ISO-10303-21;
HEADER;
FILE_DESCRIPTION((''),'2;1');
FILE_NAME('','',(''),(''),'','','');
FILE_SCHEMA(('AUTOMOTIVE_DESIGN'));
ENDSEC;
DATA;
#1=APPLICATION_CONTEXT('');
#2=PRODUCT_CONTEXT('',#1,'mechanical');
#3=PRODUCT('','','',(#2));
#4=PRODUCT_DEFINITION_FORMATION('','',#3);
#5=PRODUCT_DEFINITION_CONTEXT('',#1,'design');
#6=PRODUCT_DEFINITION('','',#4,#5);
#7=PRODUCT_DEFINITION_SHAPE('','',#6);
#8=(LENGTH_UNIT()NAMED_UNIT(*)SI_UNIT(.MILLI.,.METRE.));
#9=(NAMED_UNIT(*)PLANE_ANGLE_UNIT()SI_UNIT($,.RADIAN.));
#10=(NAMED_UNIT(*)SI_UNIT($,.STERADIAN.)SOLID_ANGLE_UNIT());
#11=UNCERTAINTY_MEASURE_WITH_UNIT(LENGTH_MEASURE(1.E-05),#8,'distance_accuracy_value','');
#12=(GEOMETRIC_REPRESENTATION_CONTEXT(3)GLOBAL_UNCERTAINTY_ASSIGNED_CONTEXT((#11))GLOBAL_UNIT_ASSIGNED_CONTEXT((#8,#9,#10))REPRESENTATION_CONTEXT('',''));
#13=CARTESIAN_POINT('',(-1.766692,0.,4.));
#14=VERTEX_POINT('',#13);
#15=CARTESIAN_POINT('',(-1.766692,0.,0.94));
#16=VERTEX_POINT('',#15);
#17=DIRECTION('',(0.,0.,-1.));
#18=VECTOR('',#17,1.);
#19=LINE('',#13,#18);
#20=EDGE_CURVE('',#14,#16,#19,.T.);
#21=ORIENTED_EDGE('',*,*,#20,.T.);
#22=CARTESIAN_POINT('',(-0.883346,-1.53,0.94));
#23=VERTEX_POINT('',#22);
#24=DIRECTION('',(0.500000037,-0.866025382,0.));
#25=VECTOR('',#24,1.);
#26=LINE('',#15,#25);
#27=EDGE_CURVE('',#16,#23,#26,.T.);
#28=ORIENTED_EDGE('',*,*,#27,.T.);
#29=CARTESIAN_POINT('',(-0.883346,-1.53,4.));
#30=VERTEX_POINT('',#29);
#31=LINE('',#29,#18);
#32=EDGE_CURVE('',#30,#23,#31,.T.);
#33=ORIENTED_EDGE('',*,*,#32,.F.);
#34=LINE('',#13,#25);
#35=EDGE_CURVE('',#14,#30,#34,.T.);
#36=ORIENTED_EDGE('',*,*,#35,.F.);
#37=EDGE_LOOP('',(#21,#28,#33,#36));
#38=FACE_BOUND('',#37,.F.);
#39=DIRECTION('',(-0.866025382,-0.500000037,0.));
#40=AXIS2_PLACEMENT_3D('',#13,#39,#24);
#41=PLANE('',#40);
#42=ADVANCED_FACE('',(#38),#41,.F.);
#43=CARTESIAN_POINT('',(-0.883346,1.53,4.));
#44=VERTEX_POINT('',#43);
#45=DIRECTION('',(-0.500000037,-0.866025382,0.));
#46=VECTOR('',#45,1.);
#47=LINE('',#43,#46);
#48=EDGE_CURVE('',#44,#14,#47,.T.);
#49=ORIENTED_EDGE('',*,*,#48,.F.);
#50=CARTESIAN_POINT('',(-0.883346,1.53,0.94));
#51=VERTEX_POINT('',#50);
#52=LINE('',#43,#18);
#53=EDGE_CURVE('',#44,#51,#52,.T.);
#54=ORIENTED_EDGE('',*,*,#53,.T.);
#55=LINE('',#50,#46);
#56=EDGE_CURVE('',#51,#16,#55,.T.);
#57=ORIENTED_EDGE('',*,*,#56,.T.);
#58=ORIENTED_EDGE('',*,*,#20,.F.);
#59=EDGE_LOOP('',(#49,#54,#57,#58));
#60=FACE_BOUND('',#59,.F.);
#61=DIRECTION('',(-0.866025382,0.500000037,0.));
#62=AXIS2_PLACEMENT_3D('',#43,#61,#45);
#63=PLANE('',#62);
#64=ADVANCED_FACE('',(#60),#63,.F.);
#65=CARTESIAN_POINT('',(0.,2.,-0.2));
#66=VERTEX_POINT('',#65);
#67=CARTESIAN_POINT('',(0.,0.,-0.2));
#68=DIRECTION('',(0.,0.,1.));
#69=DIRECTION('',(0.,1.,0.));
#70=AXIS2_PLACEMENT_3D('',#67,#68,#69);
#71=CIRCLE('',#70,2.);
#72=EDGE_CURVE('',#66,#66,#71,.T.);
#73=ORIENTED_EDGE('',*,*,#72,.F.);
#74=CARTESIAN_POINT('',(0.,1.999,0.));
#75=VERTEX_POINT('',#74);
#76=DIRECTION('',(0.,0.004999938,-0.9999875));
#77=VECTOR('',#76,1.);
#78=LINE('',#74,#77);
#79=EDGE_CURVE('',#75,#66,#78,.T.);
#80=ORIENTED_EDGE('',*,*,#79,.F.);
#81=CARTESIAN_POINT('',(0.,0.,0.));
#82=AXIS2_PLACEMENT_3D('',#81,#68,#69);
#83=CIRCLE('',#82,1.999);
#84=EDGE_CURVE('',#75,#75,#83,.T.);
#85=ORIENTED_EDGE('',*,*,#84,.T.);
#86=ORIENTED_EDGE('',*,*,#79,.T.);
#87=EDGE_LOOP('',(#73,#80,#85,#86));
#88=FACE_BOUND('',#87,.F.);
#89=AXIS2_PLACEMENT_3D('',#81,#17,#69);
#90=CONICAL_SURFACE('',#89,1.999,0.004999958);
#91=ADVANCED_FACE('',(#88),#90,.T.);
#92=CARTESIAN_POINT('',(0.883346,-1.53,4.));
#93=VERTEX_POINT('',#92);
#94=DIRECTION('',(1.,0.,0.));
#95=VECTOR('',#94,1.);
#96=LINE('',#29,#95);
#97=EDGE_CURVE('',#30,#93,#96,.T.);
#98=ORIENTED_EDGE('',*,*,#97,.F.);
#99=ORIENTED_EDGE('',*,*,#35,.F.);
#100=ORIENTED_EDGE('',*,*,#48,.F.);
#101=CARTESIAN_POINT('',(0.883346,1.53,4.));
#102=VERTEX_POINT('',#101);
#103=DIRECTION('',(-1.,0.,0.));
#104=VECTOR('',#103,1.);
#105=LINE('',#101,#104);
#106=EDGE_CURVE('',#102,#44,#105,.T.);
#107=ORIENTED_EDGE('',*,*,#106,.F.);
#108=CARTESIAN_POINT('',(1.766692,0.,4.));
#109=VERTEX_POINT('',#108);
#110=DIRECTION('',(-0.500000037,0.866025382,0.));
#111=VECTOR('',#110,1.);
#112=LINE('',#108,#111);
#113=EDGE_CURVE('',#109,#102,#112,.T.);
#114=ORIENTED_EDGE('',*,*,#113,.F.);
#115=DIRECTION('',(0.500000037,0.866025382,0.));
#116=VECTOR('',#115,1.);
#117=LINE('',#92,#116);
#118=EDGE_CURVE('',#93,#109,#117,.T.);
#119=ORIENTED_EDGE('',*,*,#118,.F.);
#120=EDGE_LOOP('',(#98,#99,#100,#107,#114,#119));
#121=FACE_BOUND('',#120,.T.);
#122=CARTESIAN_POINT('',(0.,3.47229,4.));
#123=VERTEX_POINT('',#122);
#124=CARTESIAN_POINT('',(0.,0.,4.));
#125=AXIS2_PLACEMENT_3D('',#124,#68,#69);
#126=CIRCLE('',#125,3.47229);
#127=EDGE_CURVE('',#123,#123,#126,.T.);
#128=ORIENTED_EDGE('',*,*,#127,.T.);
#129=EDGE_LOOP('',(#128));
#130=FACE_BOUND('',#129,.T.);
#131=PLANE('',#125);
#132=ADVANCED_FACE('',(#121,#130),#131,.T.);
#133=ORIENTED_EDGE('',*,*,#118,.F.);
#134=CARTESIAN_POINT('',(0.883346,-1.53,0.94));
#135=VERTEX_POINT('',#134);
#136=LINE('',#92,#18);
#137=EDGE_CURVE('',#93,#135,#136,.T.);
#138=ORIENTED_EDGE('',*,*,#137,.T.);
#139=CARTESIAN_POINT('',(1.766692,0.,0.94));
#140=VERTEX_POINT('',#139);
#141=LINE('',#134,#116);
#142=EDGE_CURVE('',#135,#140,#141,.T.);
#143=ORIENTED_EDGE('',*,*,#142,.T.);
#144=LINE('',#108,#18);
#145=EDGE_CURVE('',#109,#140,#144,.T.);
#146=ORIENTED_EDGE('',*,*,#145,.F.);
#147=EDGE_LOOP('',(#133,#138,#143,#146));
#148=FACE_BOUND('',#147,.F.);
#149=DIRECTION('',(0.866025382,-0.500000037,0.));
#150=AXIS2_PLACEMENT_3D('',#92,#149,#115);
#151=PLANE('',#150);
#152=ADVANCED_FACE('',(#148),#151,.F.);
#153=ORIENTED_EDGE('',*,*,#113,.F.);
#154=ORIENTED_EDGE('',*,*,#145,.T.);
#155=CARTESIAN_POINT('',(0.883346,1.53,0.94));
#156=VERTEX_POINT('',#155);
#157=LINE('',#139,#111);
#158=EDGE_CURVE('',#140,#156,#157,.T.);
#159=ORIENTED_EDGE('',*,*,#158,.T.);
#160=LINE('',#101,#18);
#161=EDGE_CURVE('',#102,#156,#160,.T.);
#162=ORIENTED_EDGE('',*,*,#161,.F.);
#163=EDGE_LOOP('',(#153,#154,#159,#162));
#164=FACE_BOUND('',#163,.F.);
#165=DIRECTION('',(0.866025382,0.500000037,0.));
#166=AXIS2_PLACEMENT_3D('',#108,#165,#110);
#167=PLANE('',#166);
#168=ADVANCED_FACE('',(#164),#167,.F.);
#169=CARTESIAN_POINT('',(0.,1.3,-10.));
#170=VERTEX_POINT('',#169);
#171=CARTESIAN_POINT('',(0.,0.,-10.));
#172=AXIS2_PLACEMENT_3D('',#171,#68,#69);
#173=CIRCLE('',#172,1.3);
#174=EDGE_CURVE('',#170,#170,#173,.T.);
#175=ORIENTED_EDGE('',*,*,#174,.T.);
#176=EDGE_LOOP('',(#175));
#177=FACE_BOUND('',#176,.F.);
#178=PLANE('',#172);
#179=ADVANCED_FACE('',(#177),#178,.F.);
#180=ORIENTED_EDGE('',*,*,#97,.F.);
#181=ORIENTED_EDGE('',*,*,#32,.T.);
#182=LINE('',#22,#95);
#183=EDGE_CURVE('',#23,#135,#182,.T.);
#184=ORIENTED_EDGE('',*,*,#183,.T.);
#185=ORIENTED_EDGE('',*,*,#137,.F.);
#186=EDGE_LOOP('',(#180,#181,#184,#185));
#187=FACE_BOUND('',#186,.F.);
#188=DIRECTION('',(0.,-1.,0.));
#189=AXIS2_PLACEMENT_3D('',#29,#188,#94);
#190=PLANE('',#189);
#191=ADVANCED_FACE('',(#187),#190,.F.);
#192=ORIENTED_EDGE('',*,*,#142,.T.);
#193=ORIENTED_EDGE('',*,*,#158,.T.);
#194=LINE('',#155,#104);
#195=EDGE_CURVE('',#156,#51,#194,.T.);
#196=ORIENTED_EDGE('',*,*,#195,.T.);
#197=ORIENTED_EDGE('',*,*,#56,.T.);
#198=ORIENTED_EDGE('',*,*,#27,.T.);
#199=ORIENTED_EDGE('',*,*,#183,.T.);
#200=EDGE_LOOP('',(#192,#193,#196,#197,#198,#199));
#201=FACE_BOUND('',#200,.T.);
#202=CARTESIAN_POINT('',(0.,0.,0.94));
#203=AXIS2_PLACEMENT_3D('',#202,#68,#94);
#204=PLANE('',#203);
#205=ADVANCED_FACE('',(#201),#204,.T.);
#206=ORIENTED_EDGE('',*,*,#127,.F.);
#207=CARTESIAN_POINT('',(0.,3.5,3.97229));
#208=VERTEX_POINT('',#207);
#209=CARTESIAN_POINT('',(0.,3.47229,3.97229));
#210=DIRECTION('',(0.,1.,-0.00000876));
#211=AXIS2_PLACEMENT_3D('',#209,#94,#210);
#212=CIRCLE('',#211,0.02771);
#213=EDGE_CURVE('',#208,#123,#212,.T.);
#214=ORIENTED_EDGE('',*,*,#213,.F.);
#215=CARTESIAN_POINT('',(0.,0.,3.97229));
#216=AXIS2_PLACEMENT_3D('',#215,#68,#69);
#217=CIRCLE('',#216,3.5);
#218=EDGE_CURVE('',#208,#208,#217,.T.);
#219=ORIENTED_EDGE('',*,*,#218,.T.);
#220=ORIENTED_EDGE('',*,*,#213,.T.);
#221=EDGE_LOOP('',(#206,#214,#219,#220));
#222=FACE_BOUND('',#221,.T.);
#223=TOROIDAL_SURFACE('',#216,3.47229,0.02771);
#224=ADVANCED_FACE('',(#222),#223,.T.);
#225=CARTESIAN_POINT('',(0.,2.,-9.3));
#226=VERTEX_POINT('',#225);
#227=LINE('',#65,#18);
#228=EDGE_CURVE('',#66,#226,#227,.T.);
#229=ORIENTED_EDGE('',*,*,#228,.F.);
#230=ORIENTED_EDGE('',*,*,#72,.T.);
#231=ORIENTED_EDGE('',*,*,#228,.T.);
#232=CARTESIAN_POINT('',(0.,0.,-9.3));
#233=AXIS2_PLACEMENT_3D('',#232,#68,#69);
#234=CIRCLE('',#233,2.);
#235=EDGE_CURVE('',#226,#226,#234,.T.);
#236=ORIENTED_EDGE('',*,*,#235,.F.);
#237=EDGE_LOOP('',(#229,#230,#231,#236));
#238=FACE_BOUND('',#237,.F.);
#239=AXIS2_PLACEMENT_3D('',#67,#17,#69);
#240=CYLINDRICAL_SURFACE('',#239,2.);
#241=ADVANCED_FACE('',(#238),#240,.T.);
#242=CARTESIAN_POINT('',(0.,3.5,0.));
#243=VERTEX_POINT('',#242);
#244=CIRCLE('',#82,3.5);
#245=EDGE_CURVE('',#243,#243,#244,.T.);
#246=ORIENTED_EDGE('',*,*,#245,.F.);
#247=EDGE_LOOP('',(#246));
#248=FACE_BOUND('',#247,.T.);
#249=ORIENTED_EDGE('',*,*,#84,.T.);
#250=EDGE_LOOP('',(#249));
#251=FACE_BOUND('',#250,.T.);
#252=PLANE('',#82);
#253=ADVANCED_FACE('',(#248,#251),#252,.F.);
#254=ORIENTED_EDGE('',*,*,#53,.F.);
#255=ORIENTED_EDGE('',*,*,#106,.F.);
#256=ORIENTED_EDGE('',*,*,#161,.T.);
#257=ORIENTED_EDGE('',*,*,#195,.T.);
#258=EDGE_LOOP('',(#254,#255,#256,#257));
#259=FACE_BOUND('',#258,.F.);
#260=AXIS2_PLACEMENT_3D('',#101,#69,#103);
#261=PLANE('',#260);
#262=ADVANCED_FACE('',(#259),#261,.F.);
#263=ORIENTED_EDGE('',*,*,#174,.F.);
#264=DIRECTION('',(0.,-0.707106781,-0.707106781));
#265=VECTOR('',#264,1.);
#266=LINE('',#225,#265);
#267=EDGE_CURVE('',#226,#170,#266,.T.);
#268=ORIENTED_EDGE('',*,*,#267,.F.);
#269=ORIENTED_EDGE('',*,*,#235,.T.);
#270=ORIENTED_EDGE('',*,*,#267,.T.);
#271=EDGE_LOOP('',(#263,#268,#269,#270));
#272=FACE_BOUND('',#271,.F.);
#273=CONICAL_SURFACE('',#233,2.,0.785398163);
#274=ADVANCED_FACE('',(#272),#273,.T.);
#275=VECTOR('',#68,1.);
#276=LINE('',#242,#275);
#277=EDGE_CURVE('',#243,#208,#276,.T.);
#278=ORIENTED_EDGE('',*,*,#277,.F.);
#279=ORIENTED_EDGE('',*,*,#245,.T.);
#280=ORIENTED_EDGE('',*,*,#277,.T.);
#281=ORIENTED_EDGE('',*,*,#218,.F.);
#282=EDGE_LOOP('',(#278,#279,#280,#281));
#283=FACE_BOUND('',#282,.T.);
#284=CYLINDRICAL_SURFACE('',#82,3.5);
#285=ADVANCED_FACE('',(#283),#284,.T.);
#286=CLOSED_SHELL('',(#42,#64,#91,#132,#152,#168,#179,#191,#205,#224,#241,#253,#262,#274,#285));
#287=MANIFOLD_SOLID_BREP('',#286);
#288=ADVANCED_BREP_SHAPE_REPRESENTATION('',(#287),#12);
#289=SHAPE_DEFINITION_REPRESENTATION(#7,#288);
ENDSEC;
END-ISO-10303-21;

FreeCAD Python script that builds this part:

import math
import FreeCAD as App
import Part
import Sketcher
from FreeCAD import Vector
Q = App.Units.Quantity

doc = App.newDocument("Part")
body = doc.addObject("PartDesign::Body", "Body")

# Sketch on YZ plane
sketch1 = doc.addObject("Sketcher::SketchObject", "Sketch")
body.addObject(sketch1)
sketch1.AttachmentSupport = (doc.YZ_Plane, [""])
sketch1.MapMode = "FlatFace"
sketch1.addGeometry(Part.LineSegment(Vector(1.999, 0, 0), Vector(3.5, 0, 0)), False)
sketch1.addGeometry(Part.LineSegment(Vector(3.5, 0, 0), Vector(3.5, 3.972, 0)), False)
sketch1.addGeometry(Part.ArcOfCircle(Part.Circle(Vector(3.472, 3.972, 0), Vector(0, 0, 1), 0.028), math.radians(0), math.radians(90)), False)
sketch1.addGeometry(Part.LineSegment(Vector(3.472, 4, 0), Vector(0, 4, 0)), False)
sketch1.addGeometry(Part.LineSegment(Vector(0, 4, 0), Vector(0, -10, 0)), False)
sketch1.addGeometry(Part.LineSegment(Vector(0, -10, 0), Vector(1.3, -10, 0)), False)
sketch1.addGeometry(Part.LineSegment(Vector(1.3, -10, 0), Vector(2, -9.3, 0)), False)
sketch1.addGeometry(Part.LineSegment(Vector(2, -9.3, 0), Vector(2, -0.2, 0)), False)
sketch1.addGeometry(Part.LineSegment(Vector(2, -0.2, 0), Vector(1.999, 0, 0)), False)
sketch1.addConstraint(Sketcher.Constraint("Coincident", 0, 2, 1, 1))
sketch1.addConstraint(Sketcher.Constraint("Coincident", 1, 2, 2, 1))
sketch1.addConstraint(Sketcher.Constraint("Coincident", 2, 2, 3, 1))
sketch1.addConstraint(Sketcher.Constraint("Coincident", 3, 2, 4, 1))
sketch1.addConstraint(Sketcher.Constraint("Coincident", 4, 2, 5, 1))
sketch1.addConstraint(Sketcher.Constraint("Coincident", 5, 2, 6, 1))
sketch1.addConstraint(Sketcher.Constraint("Coincident", 6, 2, 7, 1))
sketch1.addConstraint(Sketcher.Constraint("Coincident", 7, 2, 8, 1))
sketch1.addConstraint(Sketcher.Constraint("Coincident", 8, 2, 0, 1))
sketch1.addConstraint(Sketcher.Constraint("Horizontal", 0))
sketch1.addConstraint(Sketcher.Constraint("Vertical", 1))
sketch1.addConstraint(Sketcher.Constraint("Horizontal", 3))
sketch1.addConstraint(Sketcher.Constraint("Vertical", 4))
sketch1.addConstraint(Sketcher.Constraint("Horizontal", 5))
sketch1.addConstraint(Sketcher.Constraint("Vertical", 7))
sketch1.addConstraint(Sketcher.Constraint("PointOnObject", 0, 2, -1))
sketch1.addConstraint(Sketcher.Constraint("PointOnObject", 3, 2, -2))
sketch1.addConstraint(Sketcher.Constraint("Horizontal", 2, 3, 1, 2))
sketch1.addConstraint(Sketcher.Constraint("DistanceY", 4, 2, 4, 1, Q("14 mm")))
sketch1.addConstraint(Sketcher.Constraint("Angle", 6, Q("45 deg")))
sketch1.addConstraint(Sketcher.Constraint("DistanceX", 5, 1, 5, 2, Q("1.3 mm")))
sketch1.addConstraint(Sketcher.Constraint("DistanceY", 7, 1, 7, 2, Q("9.1 mm")))
sketch1.addConstraint(Sketcher.Constraint("DistanceY", -1, 1, 2, 2, Q("4 mm")))
sketch1.addConstraint(Sketcher.Constraint("DistanceX", -1, 1, 6, 2, Q("2 mm")))
sketch1.addConstraint(Sketcher.Constraint("DistanceX", -1, 1, 0, 2, Q("3.5 mm")))
sketch1.addConstraint(Sketcher.Constraint("DistanceX", 0, 1, 0, 2, Q("1.501 mm")))
sketch1.addConstraint(Sketcher.Constraint("Radius", 2, Q("0.02771 mm")))
sketch1.addConstraint(Sketcher.Constraint("DistanceX", 3, 2, 3, 1, Q("3.47229 mm")))
revolution = doc.addObject("PartDesign::Revolution", "Revolution")
body.addObject(revolution)
revolution.Profile = sketch1
revolution.ReferenceAxis = (sketch1, ["V_Axis"])
revolution.Angle = 360

# Sketch on XY plane
sketch2 = doc.addObject("Sketcher::SketchObject", "Sketch001")
body.addObject(sketch2)
sketch2.AttachmentSupport = (doc.XY_Plane, [""])
sketch2.MapMode = "FlatFace"
sketch2.AttachmentOffset = App.Placement(Vector(0, 0, 4), App.Rotation())
sketch2.addGeometry(Part.LineSegment(Vector(1.8, 0, 0), Vector(0.9, 1.5, 0)), False)
sketch2.addGeometry(Part.LineSegment(Vector(0.9, 1.5, 0), Vector(-0.9, 1.5, 0)), False)
sketch2.addGeometry(Part.LineSegment(Vector(-0.9, 1.5, 0), Vector(-1.8, 0, 0)), False)
sketch2.addGeometry(Part.LineSegment(Vector(-1.8, 0, 0), Vector(-0.9, -1.5, 0)), False)
sketch2.addGeometry(Part.LineSegment(Vector(-0.9, -1.5, 0), Vector(0.9, -1.5, 0)), False)
sketch2.addGeometry(Part.LineSegment(Vector(0.9, -1.5, 0), Vector(1.8, 0, 0)), False)
sketch2.addConstraint(Sketcher.Constraint("Coincident", 0, 2, 1, 1))
sketch2.addConstraint(Sketcher.Constraint("Coincident", 1, 2, 2, 1))
sketch2.addConstraint(Sketcher.Constraint("Coincident", 2, 2, 3, 1))
sketch2.addConstraint(Sketcher.Constraint("Coincident", 3, 2, 4, 1))
sketch2.addConstraint(Sketcher.Constraint("Coincident", 4, 2, 5, 1))
sketch2.addConstraint(Sketcher.Constraint("Coincident", 5, 2, 0, 1))
sketch2.addConstraint(Sketcher.Constraint("Horizontal", 1))
sketch2.addConstraint(Sketcher.Constraint("Horizontal", 4))
sketch2.addConstraint(Sketcher.Constraint("Symmetric", 0, 2, 3, 2, -1, 1))
sketch2.addConstraint(Sketcher.Constraint("Symmetric", 2, 2, 5, 2, -1, 1))
sketch2.addConstraint(Sketcher.Constraint("PointOnObject", 2, 2, -1))
sketch2.addConstraint(Sketcher.Constraint("Parallel", 2, 5))
sketch2.addConstraint(Sketcher.Constraint("Vertical", 1, 2, 3, 2))
sketch2.addConstraint(Sketcher.Constraint("Angle", 0, Q("120.000002 deg")))
sketch2.addConstraint(Sketcher.Constraint("DistanceY", -1, 1, 0, 2, Q("1.53 mm")))
sketch2.addConstraint(Sketcher.Constraint("DistanceX", 1, 2, 1, 1, Q("1.766692 mm")))
pocket1 = doc.addObject("PartDesign::Pocket", "Pocket")
body.addObject(pocket1)
pocket1.Profile = sketch2
pocket1.Length = 3.06

doc.recompute()
